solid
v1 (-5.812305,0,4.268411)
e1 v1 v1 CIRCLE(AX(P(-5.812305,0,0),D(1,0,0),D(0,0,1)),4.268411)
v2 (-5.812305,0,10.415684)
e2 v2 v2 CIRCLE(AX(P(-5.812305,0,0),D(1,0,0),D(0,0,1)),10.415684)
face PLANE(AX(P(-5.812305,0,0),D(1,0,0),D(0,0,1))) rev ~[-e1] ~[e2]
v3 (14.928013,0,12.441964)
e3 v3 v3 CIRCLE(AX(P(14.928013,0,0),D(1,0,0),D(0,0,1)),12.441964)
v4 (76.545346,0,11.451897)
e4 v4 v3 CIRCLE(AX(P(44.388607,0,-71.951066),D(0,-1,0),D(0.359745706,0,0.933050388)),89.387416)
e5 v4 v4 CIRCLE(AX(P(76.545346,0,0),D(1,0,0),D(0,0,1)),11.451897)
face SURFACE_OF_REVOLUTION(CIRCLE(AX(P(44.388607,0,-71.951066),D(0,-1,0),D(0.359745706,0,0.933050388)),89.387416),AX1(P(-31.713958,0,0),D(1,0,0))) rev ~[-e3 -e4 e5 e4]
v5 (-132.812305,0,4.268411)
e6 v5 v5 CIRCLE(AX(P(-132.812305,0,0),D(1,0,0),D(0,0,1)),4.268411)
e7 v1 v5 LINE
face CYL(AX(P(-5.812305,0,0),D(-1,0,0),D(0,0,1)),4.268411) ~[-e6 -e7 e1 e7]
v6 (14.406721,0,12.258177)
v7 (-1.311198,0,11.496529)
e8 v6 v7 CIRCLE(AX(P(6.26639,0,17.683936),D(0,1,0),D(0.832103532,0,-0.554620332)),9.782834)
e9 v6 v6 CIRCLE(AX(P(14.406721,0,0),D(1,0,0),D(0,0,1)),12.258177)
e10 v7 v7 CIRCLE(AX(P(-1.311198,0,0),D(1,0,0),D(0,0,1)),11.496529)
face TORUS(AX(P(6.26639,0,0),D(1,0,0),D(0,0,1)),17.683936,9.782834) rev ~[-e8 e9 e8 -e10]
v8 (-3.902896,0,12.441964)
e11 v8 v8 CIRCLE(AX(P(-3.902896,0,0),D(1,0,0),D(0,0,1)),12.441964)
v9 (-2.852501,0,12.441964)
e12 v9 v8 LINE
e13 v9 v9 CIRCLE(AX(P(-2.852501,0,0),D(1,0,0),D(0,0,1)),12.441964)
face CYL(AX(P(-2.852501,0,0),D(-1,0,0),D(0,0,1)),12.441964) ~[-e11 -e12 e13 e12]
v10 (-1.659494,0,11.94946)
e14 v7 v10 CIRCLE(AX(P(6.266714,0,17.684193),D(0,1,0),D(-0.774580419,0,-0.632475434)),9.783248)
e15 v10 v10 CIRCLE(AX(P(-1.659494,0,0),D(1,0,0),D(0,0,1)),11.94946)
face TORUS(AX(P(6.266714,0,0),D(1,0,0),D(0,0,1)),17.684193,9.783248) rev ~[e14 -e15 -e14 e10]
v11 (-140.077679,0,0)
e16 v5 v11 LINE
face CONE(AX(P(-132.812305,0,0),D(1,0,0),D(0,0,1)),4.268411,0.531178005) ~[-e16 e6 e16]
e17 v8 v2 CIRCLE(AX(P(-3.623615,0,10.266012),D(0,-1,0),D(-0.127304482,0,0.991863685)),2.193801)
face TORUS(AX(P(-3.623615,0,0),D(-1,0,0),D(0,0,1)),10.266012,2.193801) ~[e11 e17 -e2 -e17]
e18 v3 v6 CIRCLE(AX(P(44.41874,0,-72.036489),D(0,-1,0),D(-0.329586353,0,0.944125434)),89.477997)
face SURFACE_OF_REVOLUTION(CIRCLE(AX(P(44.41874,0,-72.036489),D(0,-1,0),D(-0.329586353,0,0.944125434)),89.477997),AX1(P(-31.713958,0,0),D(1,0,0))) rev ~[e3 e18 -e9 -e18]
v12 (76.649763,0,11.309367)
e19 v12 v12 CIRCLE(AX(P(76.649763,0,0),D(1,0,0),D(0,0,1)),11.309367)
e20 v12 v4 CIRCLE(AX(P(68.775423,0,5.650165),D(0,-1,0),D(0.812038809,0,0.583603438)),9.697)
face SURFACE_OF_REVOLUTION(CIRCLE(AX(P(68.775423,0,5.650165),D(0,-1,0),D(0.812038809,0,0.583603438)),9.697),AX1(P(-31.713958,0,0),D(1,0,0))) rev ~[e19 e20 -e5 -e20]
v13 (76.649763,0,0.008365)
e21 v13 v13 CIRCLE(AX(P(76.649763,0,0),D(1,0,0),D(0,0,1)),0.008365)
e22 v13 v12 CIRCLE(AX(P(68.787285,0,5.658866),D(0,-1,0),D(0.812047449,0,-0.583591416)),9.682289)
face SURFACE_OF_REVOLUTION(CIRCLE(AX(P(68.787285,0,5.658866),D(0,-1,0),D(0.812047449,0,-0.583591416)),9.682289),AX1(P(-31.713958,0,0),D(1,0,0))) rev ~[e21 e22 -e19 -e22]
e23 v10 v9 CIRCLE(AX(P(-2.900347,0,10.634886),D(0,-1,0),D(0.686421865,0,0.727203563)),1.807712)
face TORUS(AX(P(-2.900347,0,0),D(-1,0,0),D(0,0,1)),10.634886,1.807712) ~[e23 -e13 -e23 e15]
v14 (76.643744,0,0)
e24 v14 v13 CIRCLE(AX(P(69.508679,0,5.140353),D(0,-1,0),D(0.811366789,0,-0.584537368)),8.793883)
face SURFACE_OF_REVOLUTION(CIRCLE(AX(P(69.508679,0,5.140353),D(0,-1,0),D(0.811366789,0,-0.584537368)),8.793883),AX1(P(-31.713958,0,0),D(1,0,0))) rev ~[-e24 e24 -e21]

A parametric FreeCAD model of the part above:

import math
import FreeCAD as App
import Part
import Sketcher
from FreeCAD import Vector
Q = App.Units.Quantity

doc = App.newDocument("Part")
body = doc.addObject("PartDesign::Body", "Body")

# Sketch on XZ plane
sketch1 = body.newObject("Sketcher::SketchObject", "Sketch")
sketch1.AttachmentSupport = (doc.getObject("XZ_Plane"), [""])
sketch1.MapMode = "FlatFace"
sketch1.addGeometry(Part.LineSegment(Vector(-132.812, 4.268, 0), Vector(-140.078, 0, 0)), False)
sketch1.addGeometry(Part.LineSegment(Vector(-140.078, 0, 0), Vector(76.644, 0, 0)), False)
sketch1.addGeometry(Part.ArcOfCircle(Part.Circle(Vector(69.509, 5.14, 0), Vector(0, 0, 1), 8.794), math.radians(-35.77), math.radians(-35.7)), False)
sketch1.addGeometry(Part.ArcOfCircle(Part.Circle(Vector(68.787, 5.659, 0), Vector(0, 0, 1), 9.682), math.radians(-36), math.radians(36)), False)
sketch1.addGeometry(Part.ArcOfCircle(Part.Circle(Vector(68.775, 5.65, 0), Vector(0, 0, 1), 9.697), math.radians(35.7), math.radians(36.75)), False)
sketch1.addGeometry(Part.ArcOfCircle(Part.Circle(Vector(44.389, -71.951, 0), Vector(0, 0, 1), 89.387), math.radians(69), math.radians(109)), False)
sketch1.addGeometry(Part.ArcOfCircle(Part.Circle(Vector(44.419, -72.036, 0), Vector(0, 0, 1), 89.478), math.radians(109.24), math.radians(109.6)), False)
sketch1.addGeometry(Part.ArcOfCircle(Part.Circle(Vector(6.266, 17.684, 0), Vector(0, 0, 1), 9.783), math.radians(-141), math.radians(-34)), False)
sketch1.addGeometry(Part.ArcOfCircle(Part.Circle(Vector(6.267, 17.684, 0), Vector(0, 0, 1), 9.783), math.radians(-144.11), math.radians(-140.77)), False)
sketch1.addGeometry(Part.ArcOfCircle(Part.Circle(Vector(-2.9, 10.635, 0), Vector(0, 0, 1), 1.808), math.radians(47), math.radians(88)), False)
sketch1.addGeometry(Part.LineSegment(Vector(-2.853, 12.442, 0), Vector(-3.903, 12.442, 0)), False)
sketch1.addGeometry(Part.ArcOfCircle(Part.Circle(Vector(-3.624, 10.266, 0), Vector(0, 0, 1), 2.194), math.radians(97), math.radians(176)), False)
sketch1.addGeometry(Part.LineSegment(Vector(-5.812, 10.416, 0), Vector(-5.812, 4.268, 0)), False)
sketch1.addGeometry(Part.LineSegment(Vector(-5.812, 4.268, 0), Vector(-132.812, 4.268, 0)), False)
sketch1.addConstraint(Sketcher.Constraint("Coincident", 0, 2, 1, 1))
sketch1.addConstraint(Sketcher.Constraint("Coincident", 1, 2, 2, 1))
sketch1.addConstraint(Sketcher.Constraint("Coincident", 2, 2, 3, 1))
sketch1.addConstraint(Sketcher.Constraint("Coincident", 3, 2, 4, 1))
sketch1.addConstraint(Sketcher.Constraint("Coincident", 4, 2, 5, 1))
sketch1.addConstraint(Sketcher.Constraint("Coincident", 5, 2, 6, 1))
sketch1.addConstraint(Sketcher.Constraint("Coincident", 6, 2, 7, 2))
sketch1.addConstraint(Sketcher.Constraint("Tangent", 7, 1, 8, 2))
sketch1.addConstraint(Sketcher.Constraint("Coincident", 8, 1, 9, 1))
sketch1.addConstraint(Sketcher.Constraint("Coincident", 9, 2, 10, 1))
sketch1.addConstraint(Sketcher.Constraint("Coincident", 10, 2, 11, 1))
sketch1.addConstraint(Sketcher.Constraint("Coincident", 11, 2, 12, 1))
sketch1.addConstraint(Sketcher.Constraint("Coincident", 12, 2, 13, 1))
sketch1.addConstraint(Sketcher.Constraint("Coincident", 13, 2, 0, 1))
sketch1.addConstraint(Sketcher.Constraint("Horizontal", 1))
sketch1.addConstraint(Sketcher.Constraint("Horizontal", 10))
sketch1.addConstraint(Sketcher.Constraint("Vertical", 12))
sketch1.addConstraint(Sketcher.Constraint("Horizontal", 13))
sketch1.addConstraint(Sketcher.Constraint("PointOnObject", 0, 2, -1))
sketch1.addConstraint(Sketcher.Constraint("Horizontal", 5, 2, 9, 2))
sketch1.addConstraint(Sketcher.Constraint("Vertical", 2, 2, 3, 2))
sketch1.addConstraint(Sketcher.Constraint("DistanceX", 13, 2, 13, 1, Q("5 in")))
sketch1.addConstraint(Sketcher.Constraint("Radius", 4, Q("9.697 mm")))
sketch1.addConstraint(Sketcher.Constraint("Radius", 11, Q("2.193801 mm")))
sketch1.addConstraint(Sketcher.Constraint("Radius", 3, Q("9.682289 mm")))
sketch1.addConstraint(Sketcher.Constraint("Radius", 9, Q("1.807712 mm")))
sketch1.addConstraint(Sketcher.Constraint("Radius", 2, Q("8.793883 mm")))
sketch1.addConstraint(Sketcher.Constraint("Radius", 5, Q("89.387416 mm")))
sketch1.addConstraint(Sketcher.Constraint("Radius", 6, Q("89.477997 mm")))
sketch1.addConstraint(Sketcher.Constraint("Radius", 7, Q("9.782834 mm")))
sketch1.addConstraint(Sketcher.Constraint("Radius", 8, Q("9.783248 mm")))
sketch1.addConstraint(Sketcher.Constraint("DistanceY", 6, 3, 7, 3, Q("3.5323002 in")))
sketch1.addConstraint(Sketcher.Constraint("DistanceX", 7, 1, -1, 1, Q("1.311198 mm")))
sketch1.addConstraint(Sketcher.Constraint("DistanceX", 9, 2, -1, 1, Q("2.852501 mm")))
sketch1.addConstraint(Sketcher.Constraint("DistanceY", 4, 3, 3, 3, Q("0.008701 mm")))
sketch1.addConstraint(Sketcher.Constraint("DistanceY", 5, 3, 7, 3, Q("89.635002 mm")))
sketch1.addConstraint(Sketcher.Constraint("DistanceX", 11, 3, 3, 3, Q("72.4109 mm")))
sketch1.addConstraint(Sketcher.Constraint("DistanceY", 2, 2, 3, 3, Q("5.650501 mm")))
sketch1.addConstraint(Sketcher.Constraint("DistanceX", 8, 3, 5, 2, Q("8.661299 mm")))
sketch1.addConstraint(Sketcher.Constraint("DistanceY", 4, 3, 5, 2, Q("6.791799 mm")))
sketch1.addConstraint(Sketcher.Constraint("DistanceX", 10, 2, 8, 1, Q("2.243402 mm")))
sketch1.addConstraint(Sketcher.Constraint("DistanceY", 11, 2, 9, 3, Q("0.219202 mm")))
sketch1.addConstraint(Sketcher.Constraint("DistanceY", 12, 2, 11, 3, Q("5.997601 mm")))
sketch1.addConstraint(Sketcher.Constraint("DistanceX", 1, 1, 1, 2, Q("216.721423 mm")))
sketch1.addConstraint(Sketcher.Constraint("DistanceX", 10, 2, 10, 1, Q("1.050395 mm")))
sketch1.addConstraint(Sketcher.Constraint("DistanceY", 12, 2, 12, 1, Q("6.147273 mm")))
sketch1.addConstraint(Sketcher.Constraint("DistanceX", -1, 1, 2, 3, Q("69.508679 mm")))
sketch1.addConstraint(Sketcher.Constraint("DistanceX", -1, 1, 6, 3, Q("44.41874 mm")))
sketch1.addConstraint(Sketcher.Constraint("DistanceY", 6, 3, -1, 1, Q("72.036489 mm")))
sketch1.addConstraint(Sketcher.Constraint("DistanceX", -1, 1, 7, 3, Q("6.26639 mm")))
revolution = body.newObject("PartDesign::Revolution", "Revolution")
revolution.Profile = sketch1
revolution.ReferenceAxis = (sketch1, ["H_Axis"])
revolution.Angle = 360

doc.recompute()
